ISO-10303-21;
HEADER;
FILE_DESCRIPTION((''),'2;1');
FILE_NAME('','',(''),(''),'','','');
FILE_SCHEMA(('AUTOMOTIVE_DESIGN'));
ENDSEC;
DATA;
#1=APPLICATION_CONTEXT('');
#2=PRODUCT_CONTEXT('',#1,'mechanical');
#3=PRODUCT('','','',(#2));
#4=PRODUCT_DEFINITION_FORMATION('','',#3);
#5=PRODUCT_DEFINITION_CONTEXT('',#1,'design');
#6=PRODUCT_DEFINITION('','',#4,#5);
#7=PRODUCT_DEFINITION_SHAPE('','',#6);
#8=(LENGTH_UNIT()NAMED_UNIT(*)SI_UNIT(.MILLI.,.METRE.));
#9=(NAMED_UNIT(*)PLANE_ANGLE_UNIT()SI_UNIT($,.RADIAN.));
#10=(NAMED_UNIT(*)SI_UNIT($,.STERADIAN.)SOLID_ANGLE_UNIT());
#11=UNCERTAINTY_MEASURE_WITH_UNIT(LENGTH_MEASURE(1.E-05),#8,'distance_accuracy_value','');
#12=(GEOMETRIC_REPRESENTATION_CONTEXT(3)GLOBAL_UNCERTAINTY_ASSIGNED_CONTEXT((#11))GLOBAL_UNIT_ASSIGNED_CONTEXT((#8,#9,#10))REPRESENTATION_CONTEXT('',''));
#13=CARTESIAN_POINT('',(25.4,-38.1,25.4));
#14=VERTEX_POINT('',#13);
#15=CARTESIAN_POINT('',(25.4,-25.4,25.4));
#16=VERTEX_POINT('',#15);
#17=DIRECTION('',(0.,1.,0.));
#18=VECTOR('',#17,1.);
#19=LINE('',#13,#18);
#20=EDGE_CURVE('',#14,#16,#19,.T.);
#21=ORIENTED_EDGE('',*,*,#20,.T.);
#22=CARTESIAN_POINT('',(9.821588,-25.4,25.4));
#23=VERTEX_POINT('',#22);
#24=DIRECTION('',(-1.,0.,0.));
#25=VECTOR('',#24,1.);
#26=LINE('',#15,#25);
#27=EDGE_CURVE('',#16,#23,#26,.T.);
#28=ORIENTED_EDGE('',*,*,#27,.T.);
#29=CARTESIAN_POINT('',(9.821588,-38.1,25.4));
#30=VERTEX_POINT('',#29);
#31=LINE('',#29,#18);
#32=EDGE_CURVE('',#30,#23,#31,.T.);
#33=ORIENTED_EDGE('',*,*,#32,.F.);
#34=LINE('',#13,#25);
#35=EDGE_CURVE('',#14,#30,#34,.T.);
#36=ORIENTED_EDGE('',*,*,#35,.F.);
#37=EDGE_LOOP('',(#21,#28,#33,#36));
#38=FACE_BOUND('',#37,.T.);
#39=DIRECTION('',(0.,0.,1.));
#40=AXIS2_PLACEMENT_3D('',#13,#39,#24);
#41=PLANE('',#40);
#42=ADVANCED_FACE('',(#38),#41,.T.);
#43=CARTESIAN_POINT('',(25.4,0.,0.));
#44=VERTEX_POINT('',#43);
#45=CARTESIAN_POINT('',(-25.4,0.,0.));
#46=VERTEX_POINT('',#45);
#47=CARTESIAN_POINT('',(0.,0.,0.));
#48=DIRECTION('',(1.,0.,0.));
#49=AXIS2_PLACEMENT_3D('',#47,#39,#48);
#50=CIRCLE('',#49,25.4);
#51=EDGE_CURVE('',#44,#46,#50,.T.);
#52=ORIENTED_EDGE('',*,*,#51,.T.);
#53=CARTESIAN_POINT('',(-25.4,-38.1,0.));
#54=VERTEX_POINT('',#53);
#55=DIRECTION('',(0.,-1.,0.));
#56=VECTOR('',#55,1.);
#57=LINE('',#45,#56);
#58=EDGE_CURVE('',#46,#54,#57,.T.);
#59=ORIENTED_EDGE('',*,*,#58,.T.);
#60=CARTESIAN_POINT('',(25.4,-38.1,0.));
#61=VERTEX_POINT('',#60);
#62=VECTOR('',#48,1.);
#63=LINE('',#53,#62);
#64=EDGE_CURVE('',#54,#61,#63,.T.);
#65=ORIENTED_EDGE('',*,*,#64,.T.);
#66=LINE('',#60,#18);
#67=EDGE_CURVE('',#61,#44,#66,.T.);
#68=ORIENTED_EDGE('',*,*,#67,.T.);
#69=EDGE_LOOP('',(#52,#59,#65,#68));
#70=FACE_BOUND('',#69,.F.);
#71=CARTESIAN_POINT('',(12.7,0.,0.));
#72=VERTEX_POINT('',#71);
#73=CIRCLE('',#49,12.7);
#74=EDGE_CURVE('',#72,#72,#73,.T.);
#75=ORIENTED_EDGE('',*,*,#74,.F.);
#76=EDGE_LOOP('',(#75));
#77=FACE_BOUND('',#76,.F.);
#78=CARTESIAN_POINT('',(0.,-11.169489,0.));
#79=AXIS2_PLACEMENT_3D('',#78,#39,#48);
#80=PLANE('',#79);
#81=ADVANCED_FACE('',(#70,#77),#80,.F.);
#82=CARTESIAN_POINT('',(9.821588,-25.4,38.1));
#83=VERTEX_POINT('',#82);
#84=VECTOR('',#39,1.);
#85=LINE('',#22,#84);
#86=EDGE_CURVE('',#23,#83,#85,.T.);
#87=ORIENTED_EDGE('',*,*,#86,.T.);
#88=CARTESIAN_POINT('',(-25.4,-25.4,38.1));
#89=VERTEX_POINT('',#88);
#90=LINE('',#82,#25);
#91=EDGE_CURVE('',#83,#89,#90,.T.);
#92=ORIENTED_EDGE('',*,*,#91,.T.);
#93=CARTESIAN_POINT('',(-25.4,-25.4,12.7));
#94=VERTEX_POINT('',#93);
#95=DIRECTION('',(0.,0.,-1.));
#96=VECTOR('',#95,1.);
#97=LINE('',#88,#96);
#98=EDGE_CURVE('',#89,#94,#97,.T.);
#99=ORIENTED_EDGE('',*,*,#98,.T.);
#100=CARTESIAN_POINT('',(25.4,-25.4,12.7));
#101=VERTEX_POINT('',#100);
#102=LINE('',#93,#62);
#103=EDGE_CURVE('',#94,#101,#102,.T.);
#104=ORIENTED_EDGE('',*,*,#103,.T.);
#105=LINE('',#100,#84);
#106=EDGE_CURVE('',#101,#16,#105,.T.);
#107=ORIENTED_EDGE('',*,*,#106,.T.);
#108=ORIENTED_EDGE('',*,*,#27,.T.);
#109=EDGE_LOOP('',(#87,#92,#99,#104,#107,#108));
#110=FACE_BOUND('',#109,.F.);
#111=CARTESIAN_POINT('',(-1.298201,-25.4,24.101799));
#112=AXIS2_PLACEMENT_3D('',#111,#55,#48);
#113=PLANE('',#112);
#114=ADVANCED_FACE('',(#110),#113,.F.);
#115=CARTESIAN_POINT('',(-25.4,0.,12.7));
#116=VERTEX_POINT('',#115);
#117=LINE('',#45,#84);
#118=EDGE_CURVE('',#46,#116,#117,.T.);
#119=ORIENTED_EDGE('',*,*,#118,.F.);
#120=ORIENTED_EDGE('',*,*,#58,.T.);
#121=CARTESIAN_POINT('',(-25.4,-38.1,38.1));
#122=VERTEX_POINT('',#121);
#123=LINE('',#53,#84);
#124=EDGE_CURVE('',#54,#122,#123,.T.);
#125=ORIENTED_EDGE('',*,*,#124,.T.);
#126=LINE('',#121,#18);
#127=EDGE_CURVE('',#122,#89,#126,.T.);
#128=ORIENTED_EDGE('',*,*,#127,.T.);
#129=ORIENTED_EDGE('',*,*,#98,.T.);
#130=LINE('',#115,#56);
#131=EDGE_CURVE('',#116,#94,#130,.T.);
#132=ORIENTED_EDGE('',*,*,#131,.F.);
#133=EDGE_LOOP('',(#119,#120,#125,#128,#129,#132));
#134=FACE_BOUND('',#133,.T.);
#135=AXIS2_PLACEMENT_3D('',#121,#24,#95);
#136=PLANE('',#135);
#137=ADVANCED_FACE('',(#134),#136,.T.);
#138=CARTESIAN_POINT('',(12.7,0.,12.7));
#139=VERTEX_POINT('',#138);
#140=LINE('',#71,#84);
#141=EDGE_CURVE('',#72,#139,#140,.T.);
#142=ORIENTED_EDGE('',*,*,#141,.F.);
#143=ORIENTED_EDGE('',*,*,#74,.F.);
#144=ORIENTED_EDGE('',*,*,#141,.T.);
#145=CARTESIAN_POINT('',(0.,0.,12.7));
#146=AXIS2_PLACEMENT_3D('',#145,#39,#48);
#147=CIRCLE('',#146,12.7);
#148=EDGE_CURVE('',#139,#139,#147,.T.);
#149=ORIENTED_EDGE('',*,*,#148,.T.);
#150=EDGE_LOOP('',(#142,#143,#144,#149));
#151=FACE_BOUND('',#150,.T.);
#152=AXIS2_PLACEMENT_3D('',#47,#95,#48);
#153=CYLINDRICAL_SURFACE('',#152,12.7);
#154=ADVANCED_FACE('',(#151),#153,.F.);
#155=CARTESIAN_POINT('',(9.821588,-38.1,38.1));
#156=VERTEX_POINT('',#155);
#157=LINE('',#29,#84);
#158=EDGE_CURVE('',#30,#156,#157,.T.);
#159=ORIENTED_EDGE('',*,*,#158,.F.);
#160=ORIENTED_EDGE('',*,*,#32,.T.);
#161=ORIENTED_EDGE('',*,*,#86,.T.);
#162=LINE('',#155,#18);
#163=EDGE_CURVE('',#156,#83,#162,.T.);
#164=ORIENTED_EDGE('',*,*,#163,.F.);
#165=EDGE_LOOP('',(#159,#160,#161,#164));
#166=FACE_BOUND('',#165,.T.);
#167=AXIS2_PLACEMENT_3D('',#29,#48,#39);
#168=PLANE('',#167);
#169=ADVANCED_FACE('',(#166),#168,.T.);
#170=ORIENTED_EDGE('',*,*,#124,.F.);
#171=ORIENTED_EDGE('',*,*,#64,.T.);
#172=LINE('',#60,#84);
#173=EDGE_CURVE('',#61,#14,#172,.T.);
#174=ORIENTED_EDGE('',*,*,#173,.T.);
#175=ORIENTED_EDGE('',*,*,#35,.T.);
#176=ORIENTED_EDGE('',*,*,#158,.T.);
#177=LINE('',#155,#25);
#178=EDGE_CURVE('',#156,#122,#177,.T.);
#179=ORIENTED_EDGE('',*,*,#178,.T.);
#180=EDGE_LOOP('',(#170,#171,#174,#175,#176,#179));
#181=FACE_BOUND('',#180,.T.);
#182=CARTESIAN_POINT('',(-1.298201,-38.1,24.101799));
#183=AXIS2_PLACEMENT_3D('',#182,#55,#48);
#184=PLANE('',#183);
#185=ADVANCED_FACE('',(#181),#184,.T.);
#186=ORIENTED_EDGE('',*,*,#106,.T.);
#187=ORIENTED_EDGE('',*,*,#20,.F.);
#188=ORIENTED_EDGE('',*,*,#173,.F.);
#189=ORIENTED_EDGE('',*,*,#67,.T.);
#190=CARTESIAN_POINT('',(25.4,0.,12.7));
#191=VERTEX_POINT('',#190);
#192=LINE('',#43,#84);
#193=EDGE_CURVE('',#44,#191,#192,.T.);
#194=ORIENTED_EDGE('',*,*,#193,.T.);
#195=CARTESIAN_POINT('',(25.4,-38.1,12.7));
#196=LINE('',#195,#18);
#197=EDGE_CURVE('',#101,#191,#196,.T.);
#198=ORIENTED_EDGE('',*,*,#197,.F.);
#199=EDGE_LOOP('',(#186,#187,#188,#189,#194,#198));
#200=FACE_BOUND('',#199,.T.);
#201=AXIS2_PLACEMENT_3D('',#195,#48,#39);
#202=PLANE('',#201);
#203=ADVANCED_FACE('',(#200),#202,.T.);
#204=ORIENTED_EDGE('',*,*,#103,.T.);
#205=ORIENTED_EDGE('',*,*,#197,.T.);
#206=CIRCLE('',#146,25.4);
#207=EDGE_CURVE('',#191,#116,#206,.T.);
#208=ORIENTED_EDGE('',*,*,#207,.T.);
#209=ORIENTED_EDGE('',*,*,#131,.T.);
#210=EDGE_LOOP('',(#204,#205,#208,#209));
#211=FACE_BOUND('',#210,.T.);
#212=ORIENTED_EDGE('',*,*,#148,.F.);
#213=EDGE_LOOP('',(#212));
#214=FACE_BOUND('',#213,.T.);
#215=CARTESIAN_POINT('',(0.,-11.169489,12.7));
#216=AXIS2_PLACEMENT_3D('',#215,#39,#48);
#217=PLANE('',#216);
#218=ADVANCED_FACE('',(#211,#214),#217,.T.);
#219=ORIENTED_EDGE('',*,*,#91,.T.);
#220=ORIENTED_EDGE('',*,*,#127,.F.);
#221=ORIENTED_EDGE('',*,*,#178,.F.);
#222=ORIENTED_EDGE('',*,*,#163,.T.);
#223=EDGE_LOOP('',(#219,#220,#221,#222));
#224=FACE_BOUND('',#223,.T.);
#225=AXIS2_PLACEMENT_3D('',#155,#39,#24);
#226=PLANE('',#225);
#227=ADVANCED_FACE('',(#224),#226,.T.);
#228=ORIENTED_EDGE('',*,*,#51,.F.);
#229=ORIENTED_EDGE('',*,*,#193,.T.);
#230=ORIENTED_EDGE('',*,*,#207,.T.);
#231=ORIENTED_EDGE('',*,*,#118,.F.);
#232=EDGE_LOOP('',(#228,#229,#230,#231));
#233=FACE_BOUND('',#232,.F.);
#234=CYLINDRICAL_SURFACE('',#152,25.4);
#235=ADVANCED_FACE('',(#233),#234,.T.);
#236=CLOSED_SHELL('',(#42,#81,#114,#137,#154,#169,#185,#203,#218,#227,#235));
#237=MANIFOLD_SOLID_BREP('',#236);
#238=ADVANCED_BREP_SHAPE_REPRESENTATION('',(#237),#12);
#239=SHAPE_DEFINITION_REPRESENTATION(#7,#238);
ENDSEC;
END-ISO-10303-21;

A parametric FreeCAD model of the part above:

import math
import FreeCAD as App
import Part
import Sketcher

V = App.Vector
Q = App.Units.Quantity

doc = App.newDocument("Part")
body = doc.addObject("PartDesign::Body", "Body")

# Sketch on XY plane
sketch1 = body.newObject("Sketcher::SketchObject", "Sketch")
sketch1.AttachmentSupport = (doc.getObject("XY_Plane"), [""])
sketch1.MapMode = "FlatFace"
sketch1.addGeometry([
    Part.LineSegment(V(25.4, -38.1, 0), V(25.4, 0, 0)),  # 0
    Part.ArcOfCircle(Part.Circle(V(0, 0, 0), V(0, 0, 1), 25.4), math.radians(0), math.radians(180)),  # 1
    Part.LineSegment(V(-25.4, 0, 0), V(-25.4, -38.1, 0)),  # 2
    Part.LineSegment(V(-25.4, -38.1, 0), V(25.4, -38.1, 0)),  # 3
    Part.Circle(V(0, 0, 0), V(0, 0, 1), 12.7),  # 4
], False)
sketch1.addConstraint([
    Sketcher.Constraint("Tangent", 0, 2, 1, 1),
    Sketcher.Constraint("Tangent", 1, 2, 2, 1),
    Sketcher.Constraint("Coincident", 2, 2, 3, 1),
    Sketcher.Constraint("Coincident", 3, 2, 0, 1),
    Sketcher.Constraint("Vertical", 0),
    Sketcher.Constraint("Vertical", 2),
    Sketcher.Constraint("Horizontal", 3),
    Sketcher.Constraint("Coincident", 1, 3, -1, 1),
    Sketcher.Constraint("Coincident", 4, 3, -1, 1),
    Sketcher.Constraint("Diameter", 4, Q("1 in")),
    Sketcher.Constraint("Radius", 1, Q("1 in")),
    Sketcher.Constraint("DistanceY", 0, 1, 0, 2, Q("1.5 in")),
])
pad1 = body.newObject("PartDesign::Pad", "Pad")
pad1.Profile = sketch1
pad1.Length = Q("0.5 in")

# Sketch on XZ plane
sketch2 = body.newObject("Sketcher::SketchObject", "Sketch001")
sketch2.AttachmentSupport = (doc.getObject("XZ_Plane"), [""])
sketch2.MapMode = "FlatFace"
sketch2.AttachmentOffset = App.Placement(V(0, 0, 1.5 * 25.4), App.Rotation())
sketch2.addGeometry([
    Part.LineSegment(V(-25.4, 38.1, 0), V(-25.4, 12.7, 0)),  # 0
    Part.LineSegment(V(-25.4, 12.7, 0), V(25.4, 12.7, 0)),  # 1
    Part.LineSegment(V(25.4, 12.7, 0), V(25.4, 25.4, 0)),  # 2
    Part.LineSegment(V(25.4, 25.4, 0), V(9.821588, 25.4, 0)),  # 3
    Part.LineSegment(V(9.821588, 25.4, 0), V(9.821588, 38.1, 0)),  # 4
    Part.LineSegment(V(9.821588, 38.1, 0), V(-25.4, 38.1, 0)),  # 5
], False)
sketch2.addConstraint([
    Sketcher.Constraint("Coincident", 0, 2, 1, 1),
    Sketcher.Constraint("Coincident", 1, 2, 2, 1),
    Sketcher.Constraint("Coincident", 2, 2, 3, 1),
    Sketcher.Constraint("Coincident", 3, 2, 4, 1),
    Sketcher.Constraint("Coincident", 4, 2, 5, 1),
    Sketcher.Constraint("Coincident", 5, 2, 0, 1),
    Sketcher.Constraint("Vertical", 0),
    Sketcher.Constraint("Horizontal", 1),
    Sketcher.Constraint("Vertical", 2),
    Sketcher.Constraint("Horizontal", 3),
    Sketcher.Constraint("Vertical", 4),
    Sketcher.Constraint("Horizontal", 5),
    Sketcher.Constraint("Equal", 2, 4),
    Sketcher.Constraint("DistanceX", 1, 1, 1, 2, Q("2 in")),
    Sketcher.Constraint("DistanceY", 0, 2, 0, 1, Q("1 in")),
    Sketcher.Constraint("DistanceX", 0, 2, -1, 1, Q("1 in")),
    Sketcher.Constraint("DistanceY", -1, 1, 2, 2, Q("1 in")),
    Sketcher.Constraint("DistanceX", 3, 2, 3, 1, 15.578412),
])
pad2 = body.newObject("PartDesign::Pad", "Pad001")
pad2.Profile = sketch2
pad2.Length = Q("0.5 in")
pad2.Reversed = True

doc.recompute()
